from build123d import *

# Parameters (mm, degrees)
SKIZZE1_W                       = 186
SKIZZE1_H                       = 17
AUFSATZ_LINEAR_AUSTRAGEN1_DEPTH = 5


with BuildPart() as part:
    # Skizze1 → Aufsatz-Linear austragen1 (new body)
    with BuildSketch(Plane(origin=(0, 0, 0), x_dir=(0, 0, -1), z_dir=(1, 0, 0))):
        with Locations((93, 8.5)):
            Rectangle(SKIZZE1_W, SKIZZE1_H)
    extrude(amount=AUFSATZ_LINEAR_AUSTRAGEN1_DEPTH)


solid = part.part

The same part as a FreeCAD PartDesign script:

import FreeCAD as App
import Part
import Sketcher
from FreeCAD import Vector
Q = App.Units.Quantity


def add_polygon(sketch, points):
    """Adds a closed chain of lines whose ends are joined by coincident constraints."""
    first, n = sketch.GeometryCount, len(points)
    for a, b in zip(points, points[1:] + points[:1]):
        sketch.addGeometry(Part.LineSegment(App.Vector(*a, 0), App.Vector(*b, 0)), False)
    for i in range(n):
        sketch.addConstraint(Sketcher.Constraint("Coincident", first + i, 2, first + (i + 1) % n, 1))

doc = App.newDocument("Part")
body = doc.addObject("PartDesign::Body", "Body")

sketch1 = body.newObject("Sketcher::SketchObject", "Sketch")
sketch1.AttachmentSupport = (doc.getObject("YZ_Plane"), [""])
sketch1.MapMode = "FlatFace"
add_polygon(sketch1, [(17, 0), (0, 0), (0, -186), (17, -186)])
sketch1.addConstraint(Sketcher.Constraint("Horizontal", 0))
sketch1.addConstraint(Sketcher.Constraint("Vertical", 1))
sketch1.addConstraint(Sketcher.Constraint("Horizontal", 2))
sketch1.addConstraint(Sketcher.Constraint("Vertical", 3))
sketch1.addConstraint(Sketcher.Constraint("Coincident", 0, 2, -1, 1))
sketch1.addConstraint(Sketcher.Constraint("DistanceX", 0, 2, 0, 1, Q("17 mm")))
sketch1.addConstraint(Sketcher.Constraint("DistanceY", 1, 2, 1, 1, Q("186 mm")))
pad1 = body.newObject("PartDesign::Pad", "Pad")
pad1.Profile = sketch1
pad1.Length = 5

doc.recompute()
